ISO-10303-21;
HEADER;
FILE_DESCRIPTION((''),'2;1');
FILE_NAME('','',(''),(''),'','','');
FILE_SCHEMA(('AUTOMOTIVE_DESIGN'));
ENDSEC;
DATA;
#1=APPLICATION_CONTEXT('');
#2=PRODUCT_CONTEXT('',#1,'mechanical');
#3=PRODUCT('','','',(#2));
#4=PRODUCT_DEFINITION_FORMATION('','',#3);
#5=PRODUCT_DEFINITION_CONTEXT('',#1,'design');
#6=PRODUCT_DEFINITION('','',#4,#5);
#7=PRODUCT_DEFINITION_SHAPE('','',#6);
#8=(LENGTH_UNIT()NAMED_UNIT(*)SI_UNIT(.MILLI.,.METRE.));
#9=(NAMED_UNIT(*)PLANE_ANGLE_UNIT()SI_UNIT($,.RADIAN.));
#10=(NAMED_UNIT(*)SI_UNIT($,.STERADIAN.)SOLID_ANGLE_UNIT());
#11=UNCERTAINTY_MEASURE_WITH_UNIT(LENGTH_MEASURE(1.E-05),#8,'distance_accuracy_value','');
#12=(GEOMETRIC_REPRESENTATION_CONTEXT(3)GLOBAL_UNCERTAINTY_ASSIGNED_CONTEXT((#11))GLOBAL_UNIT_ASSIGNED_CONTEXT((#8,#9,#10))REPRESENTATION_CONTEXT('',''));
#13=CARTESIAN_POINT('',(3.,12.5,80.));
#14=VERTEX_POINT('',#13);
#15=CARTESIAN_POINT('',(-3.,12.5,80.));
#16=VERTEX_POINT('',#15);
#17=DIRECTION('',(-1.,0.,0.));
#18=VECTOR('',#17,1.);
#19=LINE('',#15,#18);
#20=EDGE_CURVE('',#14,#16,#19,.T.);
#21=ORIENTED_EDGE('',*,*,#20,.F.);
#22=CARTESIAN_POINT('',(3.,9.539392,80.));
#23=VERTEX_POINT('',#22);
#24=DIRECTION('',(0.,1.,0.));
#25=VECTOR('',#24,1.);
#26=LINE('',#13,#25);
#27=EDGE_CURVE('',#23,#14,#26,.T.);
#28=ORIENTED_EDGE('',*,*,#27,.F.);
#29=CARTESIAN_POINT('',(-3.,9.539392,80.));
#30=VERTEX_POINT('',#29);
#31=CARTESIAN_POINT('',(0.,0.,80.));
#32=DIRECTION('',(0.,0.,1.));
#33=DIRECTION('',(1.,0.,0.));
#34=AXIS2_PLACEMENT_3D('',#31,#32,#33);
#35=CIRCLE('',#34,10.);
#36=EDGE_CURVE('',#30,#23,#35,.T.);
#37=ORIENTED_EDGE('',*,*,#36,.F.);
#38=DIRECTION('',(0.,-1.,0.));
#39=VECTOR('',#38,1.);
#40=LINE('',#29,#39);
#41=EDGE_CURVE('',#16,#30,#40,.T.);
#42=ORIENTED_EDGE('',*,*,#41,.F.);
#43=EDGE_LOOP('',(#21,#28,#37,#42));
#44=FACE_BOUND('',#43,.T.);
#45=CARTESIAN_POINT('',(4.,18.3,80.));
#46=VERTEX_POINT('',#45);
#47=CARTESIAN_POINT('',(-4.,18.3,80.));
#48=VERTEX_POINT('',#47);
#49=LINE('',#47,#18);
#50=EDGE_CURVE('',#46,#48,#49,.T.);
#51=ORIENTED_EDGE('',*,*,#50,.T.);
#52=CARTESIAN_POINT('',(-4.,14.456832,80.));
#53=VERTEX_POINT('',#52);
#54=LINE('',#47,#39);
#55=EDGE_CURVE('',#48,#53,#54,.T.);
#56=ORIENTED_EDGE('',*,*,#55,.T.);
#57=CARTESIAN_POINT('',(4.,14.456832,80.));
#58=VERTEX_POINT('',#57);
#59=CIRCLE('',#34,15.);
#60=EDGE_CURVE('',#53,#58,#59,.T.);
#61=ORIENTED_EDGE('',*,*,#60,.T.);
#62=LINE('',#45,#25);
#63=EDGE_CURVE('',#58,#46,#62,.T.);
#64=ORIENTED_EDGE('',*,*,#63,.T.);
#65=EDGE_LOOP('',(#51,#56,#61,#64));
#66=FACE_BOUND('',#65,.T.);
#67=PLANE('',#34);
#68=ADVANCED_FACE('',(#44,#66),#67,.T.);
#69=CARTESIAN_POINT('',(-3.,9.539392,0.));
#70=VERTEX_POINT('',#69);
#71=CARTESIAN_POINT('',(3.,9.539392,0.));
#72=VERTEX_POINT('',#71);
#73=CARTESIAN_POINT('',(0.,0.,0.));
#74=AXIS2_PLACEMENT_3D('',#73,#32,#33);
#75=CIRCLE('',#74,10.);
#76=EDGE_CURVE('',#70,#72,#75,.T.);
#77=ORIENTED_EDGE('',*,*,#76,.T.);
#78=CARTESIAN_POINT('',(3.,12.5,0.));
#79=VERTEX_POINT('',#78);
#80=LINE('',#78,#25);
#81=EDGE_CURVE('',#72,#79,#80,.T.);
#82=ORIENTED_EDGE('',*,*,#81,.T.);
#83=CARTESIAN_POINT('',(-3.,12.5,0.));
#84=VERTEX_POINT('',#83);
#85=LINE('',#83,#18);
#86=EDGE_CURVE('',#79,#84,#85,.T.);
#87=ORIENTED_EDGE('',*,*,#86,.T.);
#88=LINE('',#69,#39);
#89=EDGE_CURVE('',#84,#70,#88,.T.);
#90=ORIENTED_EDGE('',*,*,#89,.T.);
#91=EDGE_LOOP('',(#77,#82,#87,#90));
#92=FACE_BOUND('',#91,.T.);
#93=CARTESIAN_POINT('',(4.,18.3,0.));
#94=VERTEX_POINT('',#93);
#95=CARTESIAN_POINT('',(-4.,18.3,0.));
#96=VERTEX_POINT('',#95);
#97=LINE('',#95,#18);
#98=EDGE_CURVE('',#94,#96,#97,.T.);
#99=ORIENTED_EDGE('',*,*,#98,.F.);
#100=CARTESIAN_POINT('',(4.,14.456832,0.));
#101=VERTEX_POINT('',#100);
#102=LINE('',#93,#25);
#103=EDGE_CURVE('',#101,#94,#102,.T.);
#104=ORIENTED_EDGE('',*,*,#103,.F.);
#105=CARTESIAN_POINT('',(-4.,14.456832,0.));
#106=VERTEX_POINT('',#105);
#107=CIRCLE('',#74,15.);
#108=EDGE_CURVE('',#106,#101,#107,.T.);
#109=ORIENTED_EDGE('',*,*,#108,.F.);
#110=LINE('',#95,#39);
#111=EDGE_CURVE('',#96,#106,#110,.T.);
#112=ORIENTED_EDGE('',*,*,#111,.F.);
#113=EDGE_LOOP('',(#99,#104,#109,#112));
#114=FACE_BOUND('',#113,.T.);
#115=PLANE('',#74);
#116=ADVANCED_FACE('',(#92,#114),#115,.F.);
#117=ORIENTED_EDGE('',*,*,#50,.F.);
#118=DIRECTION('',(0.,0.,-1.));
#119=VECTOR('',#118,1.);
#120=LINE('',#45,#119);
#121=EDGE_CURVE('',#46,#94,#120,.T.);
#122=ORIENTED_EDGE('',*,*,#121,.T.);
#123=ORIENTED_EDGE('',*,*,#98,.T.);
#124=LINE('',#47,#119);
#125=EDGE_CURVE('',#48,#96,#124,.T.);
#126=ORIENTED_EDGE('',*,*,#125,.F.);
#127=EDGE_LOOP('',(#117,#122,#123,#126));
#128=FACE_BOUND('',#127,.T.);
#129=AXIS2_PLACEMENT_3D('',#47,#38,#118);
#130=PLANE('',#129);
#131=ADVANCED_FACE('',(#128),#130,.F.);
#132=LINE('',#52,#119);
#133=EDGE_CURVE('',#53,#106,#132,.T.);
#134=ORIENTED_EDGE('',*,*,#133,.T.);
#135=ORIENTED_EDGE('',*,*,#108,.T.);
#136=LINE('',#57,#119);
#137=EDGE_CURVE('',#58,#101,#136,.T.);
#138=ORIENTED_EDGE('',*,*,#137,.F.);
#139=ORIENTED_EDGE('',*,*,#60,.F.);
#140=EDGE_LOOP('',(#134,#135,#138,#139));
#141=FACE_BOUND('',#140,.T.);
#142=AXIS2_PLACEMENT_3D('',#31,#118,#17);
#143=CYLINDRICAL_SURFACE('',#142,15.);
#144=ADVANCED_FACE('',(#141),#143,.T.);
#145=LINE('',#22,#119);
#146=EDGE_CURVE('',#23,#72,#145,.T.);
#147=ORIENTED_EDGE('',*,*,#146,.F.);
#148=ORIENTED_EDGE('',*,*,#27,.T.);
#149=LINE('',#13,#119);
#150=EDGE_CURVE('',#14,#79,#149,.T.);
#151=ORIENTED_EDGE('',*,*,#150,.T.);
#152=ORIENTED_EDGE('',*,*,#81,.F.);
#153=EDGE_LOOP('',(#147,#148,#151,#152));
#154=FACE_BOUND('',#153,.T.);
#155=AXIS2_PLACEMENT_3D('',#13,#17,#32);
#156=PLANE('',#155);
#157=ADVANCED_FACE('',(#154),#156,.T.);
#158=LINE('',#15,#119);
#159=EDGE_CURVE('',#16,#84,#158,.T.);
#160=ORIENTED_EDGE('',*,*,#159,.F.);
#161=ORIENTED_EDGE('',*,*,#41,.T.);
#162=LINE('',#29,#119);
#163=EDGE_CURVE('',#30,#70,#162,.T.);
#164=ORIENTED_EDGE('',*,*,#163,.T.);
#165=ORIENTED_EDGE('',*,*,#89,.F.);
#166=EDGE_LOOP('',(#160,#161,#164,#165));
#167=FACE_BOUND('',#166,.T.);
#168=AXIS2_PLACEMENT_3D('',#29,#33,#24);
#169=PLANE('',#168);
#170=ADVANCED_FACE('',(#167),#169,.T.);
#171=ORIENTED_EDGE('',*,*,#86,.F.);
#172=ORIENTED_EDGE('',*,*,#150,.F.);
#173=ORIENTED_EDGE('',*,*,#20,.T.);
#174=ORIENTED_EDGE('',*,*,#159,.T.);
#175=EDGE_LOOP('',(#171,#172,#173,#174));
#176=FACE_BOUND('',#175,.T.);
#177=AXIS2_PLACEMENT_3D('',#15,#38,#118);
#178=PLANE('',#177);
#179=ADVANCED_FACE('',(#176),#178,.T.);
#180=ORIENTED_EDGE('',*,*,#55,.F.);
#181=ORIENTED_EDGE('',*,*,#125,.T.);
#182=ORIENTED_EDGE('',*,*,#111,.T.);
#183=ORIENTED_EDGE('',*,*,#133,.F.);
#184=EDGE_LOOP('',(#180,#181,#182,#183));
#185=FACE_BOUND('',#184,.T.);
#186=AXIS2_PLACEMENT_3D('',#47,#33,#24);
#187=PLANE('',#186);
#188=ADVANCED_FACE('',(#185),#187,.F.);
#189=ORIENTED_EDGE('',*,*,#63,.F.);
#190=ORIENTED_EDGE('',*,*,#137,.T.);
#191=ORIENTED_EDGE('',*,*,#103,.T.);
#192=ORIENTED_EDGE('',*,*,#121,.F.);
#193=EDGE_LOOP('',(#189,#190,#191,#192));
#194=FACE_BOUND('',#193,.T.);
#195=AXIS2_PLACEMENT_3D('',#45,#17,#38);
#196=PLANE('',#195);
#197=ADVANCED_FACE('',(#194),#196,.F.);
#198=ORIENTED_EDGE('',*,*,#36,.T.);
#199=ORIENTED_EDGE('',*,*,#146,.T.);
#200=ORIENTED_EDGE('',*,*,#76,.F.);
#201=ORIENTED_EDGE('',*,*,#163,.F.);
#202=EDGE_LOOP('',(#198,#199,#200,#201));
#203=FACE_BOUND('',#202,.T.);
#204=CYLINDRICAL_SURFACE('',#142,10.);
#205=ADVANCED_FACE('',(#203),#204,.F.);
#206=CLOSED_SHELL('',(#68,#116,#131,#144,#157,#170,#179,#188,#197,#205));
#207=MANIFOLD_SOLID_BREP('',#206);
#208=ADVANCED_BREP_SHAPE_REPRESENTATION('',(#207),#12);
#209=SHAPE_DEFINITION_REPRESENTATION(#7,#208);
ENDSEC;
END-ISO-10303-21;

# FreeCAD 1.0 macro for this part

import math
import FreeCAD as App
import Part
import Sketcher

V = App.Vector
Q = App.Units.Quantity

doc = App.newDocument("Part")
body = doc.addObject("PartDesign::Body", "Body")

# Sketch on XY plane
sketch1 = body.newObject("Sketcher::SketchObject", "Sketch")
sketch1.AttachmentSupport = (doc.getObject("XY_Plane"), [""])
sketch1.MapMode = "FlatFace"
sketch1.addGeometry(Part.LineSegment(V(-4, 18.3, 0), V(-4, 14.5, 0)), False)
sketch1.addGeometry(Part.ArcOfCircle(Part.Circle(V(0, 0, 0), V(0, 0, 1), 15), math.radians(105), math.radians(435)), False)
sketch1.addGeometry(Part.LineSegment(V(4, 14.5, 0), V(4, 18.3, 0)), False)
sketch1.addGeometry(Part.LineSegment(V(4, 18.3, 0), V(-4, 18.3, 0)), False)
sketch1.addGeometry(Part.ArcOfCircle(Part.Circle(V(0, 0, 0), V(0, 0, 1), 10), math.radians(107), math.radians(433)), False)
sketch1.addGeometry(Part.LineSegment(V(-3, 9.5, 0), V(-3, 12.5, 0)), False)
sketch1.addGeometry(Part.LineSegment(V(-3, 12.5, 0), V(3, 12.5, 0)), False)
sketch1.addGeometry(Part.LineSegment(V(3, 12.5, 0), V(3, 9.5, 0)), False)
sketch1.addConstraint(Sketcher.Constraint("Coincident", 0, 2, 1, 1))
sketch1.addConstraint(Sketcher.Constraint("Coincident", 1, 2, 2, 1))
sketch1.addConstraint(Sketcher.Constraint("Coincident", 2, 2, 3, 1))
sketch1.addConstraint(Sketcher.Constraint("Coincident", 3, 2, 0, 1))
sketch1.addConstraint(Sketcher.Constraint("Coincident", 4, 1, 5, 1))
sketch1.addConstraint(Sketcher.Constraint("Coincident", 5, 2, 6, 1))
sketch1.addConstraint(Sketcher.Constraint("Coincident", 6, 2, 7, 1))
sketch1.addConstraint(Sketcher.Constraint("Coincident", 7, 2, 4, 2))
sketch1.addConstraint(Sketcher.Constraint("Vertical", 0))
sketch1.addConstraint(Sketcher.Constraint("Vertical", 2))
sketch1.addConstraint(Sketcher.Constraint("Horizontal", 3))
sketch1.addConstraint(Sketcher.Constraint("Vertical", 5))
sketch1.addConstraint(Sketcher.Constraint("Horizontal", 6))
sketch1.addConstraint(Sketcher.Constraint("Vertical", 7))
sketch1.addConstraint(Sketcher.Constraint("Coincident", 1, 3, -1, 1))
sketch1.addConstraint(Sketcher.Constraint("Coincident", 4, 3, -1, 1))
sketch1.addConstraint(Sketcher.Constraint("Horizontal", 0, 2, 1, 2))
sketch1.addConstraint(Sketcher.Constraint("Horizontal", 4, 1, 7, 2))
sketch1.addConstraint(Sketcher.Constraint("Radius", 1, Q("15 mm")))
sketch1.addConstraint(Sketcher.Constraint("Radius", 4, Q("10 mm")))
sketch1.addConstraint(Sketcher.Constraint("DistanceX", 3, 2, 3, 1, Q("8 mm")))
sketch1.addConstraint(Sketcher.Constraint("DistanceX", 6, 1, 6, 2, Q("6 mm")))
sketch1.addConstraint(Sketcher.Constraint("DistanceY", -1, 1, 2, 2, Q("18.3 mm")))
sketch1.addConstraint(Sketcher.Constraint("DistanceY", -1, 1, 5, 2, Q("12.5 mm")))
pad1 = body.newObject("PartDesign::Pad", "Pad")
pad1.Profile = sketch1
pad1.Length = 80

doc.recompute()
